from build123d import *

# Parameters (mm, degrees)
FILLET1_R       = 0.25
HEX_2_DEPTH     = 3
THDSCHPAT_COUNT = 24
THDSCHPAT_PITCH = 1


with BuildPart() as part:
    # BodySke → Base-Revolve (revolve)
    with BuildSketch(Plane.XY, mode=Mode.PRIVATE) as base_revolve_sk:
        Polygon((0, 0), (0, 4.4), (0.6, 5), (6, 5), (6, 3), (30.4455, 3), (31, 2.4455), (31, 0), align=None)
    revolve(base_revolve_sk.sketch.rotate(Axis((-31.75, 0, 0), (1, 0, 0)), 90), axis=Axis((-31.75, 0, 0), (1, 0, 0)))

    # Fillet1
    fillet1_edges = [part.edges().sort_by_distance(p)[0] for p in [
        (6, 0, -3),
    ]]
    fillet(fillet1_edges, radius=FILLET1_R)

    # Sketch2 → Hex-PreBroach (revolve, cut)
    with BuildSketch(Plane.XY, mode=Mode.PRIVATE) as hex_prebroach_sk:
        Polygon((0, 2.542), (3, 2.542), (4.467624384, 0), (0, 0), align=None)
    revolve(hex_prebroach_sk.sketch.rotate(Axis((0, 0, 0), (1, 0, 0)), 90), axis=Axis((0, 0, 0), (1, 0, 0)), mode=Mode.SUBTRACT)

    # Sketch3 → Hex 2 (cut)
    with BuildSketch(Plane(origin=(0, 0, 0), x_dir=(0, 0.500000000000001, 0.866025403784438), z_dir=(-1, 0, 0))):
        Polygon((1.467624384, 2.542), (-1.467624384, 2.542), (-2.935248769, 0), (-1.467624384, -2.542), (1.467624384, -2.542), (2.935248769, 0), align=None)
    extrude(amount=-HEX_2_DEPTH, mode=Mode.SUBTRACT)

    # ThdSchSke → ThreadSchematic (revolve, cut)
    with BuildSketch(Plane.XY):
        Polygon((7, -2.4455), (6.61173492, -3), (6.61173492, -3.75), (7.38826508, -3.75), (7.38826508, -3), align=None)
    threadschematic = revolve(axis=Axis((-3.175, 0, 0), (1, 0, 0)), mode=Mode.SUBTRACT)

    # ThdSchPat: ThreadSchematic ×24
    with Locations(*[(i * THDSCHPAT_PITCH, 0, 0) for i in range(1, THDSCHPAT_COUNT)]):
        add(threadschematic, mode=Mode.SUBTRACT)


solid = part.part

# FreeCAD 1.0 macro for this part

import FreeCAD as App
import Part
import Sketcher
Q = App.Units.Quantity


def edges_at(feature, points):
    """Names of the edges that pass closest to the given points."""
    edges = feature.Shape.Edges
    near = lambda p: min(range(len(edges)), key=lambda i: edges[i].distToShape(Part.Vertex(*p))[0])
    return sorted({f"Edge{near(p) + 1}" for p in points})


def add_polygon(sketch, points):
    """Adds a closed chain of lines whose ends are joined by coincident constraints."""
    first, n = sketch.GeometryCount, len(points)
    for a, b in zip(points, points[1:] + points[:1]):
        sketch.addGeometry(Part.LineSegment(App.Vector(*a, 0), App.Vector(*b, 0)), False)
    for i in range(n):
        sketch.addConstraint(Sketcher.Constraint("Coincident", first + i, 2, first + (i + 1) % n, 1))

doc = App.newDocument("Part")
body = doc.addObject("PartDesign::Body", "Body")

# Sketch on XY plane
sketch1 = body.newObject("Sketcher::SketchObject", "Sketch")
sketch1.AttachmentSupport = (doc.getObject("XY_Plane"), [""])
sketch1.MapMode = "FlatFace"
add_polygon(sketch1, [(0, 4.4), (0, 0), (31, 0), (31, 2.4), (30.4, 3), (6, 3), (6, 5), (0.6, 5)])  # lines 0-7
sketch1.addConstraint(Sketcher.Constraint("Vertical", 0))
sketch1.addConstraint(Sketcher.Constraint("Horizontal", 1))
sketch1.addConstraint(Sketcher.Constraint("Vertical", 2))
sketch1.addConstraint(Sketcher.Constraint("Horizontal", 4))
sketch1.addConstraint(Sketcher.Constraint("Vertical", 5))
sketch1.addConstraint(Sketcher.Constraint("Horizontal", 6))
sketch1.addConstraint(Sketcher.Constraint("Coincident", 0, 2, -1, 1))
sketch1.addConstraint(Sketcher.Constraint("Perpendicular", 3, 7))
sketch1.addConstraint(Sketcher.Constraint("DistanceX", 1, 1, 1, 2, 31.0))
sketch1.addConstraint(Sketcher.Constraint("DistanceY", 5, 1, 5, 2, 2.0))
sketch1.addConstraint(Sketcher.Constraint("Angle", 3, Q("135 deg")))
sketch1.addConstraint(Sketcher.Constraint("DistanceX", 6, 2, 6, 1, 5.4))
sketch1.addConstraint(Sketcher.Constraint("DistanceY", 0, 2, 0, 1, 4.4))
sketch1.addConstraint(Sketcher.Constraint("DistanceY", -1, 1, 3, 2, 3.0))
sketch1.addConstraint(Sketcher.Constraint("DistanceX", 4, 2, 4, 1, 24.4455))
revolution = body.newObject("PartDesign::Revolution", "Revolution")
revolution.Profile = sketch1
revolution.ReferenceAxis = (sketch1, ["H_Axis"])
revolution.Angle = 360
doc.recompute()

fillet = body.newObject("PartDesign::Fillet", "Fillet")
fillet.Base = (revolution, edges_at(revolution, [(6, 0, -3)]))
fillet.Radius = 0.25

# Sketch on XY plane
sketch2 = body.newObject("Sketcher::SketchObject", "Sketch001")
sketch2.AttachmentSupport = (doc.getObject("XY_Plane"), [""])
sketch2.MapMode = "FlatFace"
add_polygon(sketch2, [(3, 2.5), (0, 2.5), (0, 0), (4.5, 0)])  # lines 0-3
sketch2.addConstraint(Sketcher.Constraint("Horizontal", 0))
sketch2.addConstraint(Sketcher.Constraint("Vertical", 1))
sketch2.addConstraint(Sketcher.Constraint("Horizontal", 2))
sketch2.addConstraint(Sketcher.Constraint("Coincident", 1, 2, -1, 1))
sketch2.addConstraint(Sketcher.Constraint("DistanceX", 0, 2, 0, 1, 3.0))
sketch2.addConstraint(Sketcher.Constraint("Angle", 3, Q("120 deg")))
sketch2.addConstraint(Sketcher.Constraint("DistanceY", 1, 2, 1, 1, 2.542))
groove = body.newObject("PartDesign::Groove", "Groove")
groove.Profile = sketch2
groove.ReferenceAxis = (sketch2, ["H_Axis"])
groove.Angle = 360

# Sketch on YZ plane
sketch3 = body.newObject("Sketcher::SketchObject", "Sketch002")
sketch3.AttachmentSupport = (doc.getObject("YZ_Plane"), [""])
sketch3.MapMode = "FlatFace"
add_polygon(sketch3, [(2.9, 0), (1.5, -2.5), (-1.5, -2.5), (-2.9, 0), (-1.5, 2.5), (1.5, 2.5)])  # lines 0-5
sketch3.addConstraint(Sketcher.Constraint("Horizontal", 1))
sketch3.addConstraint(Sketcher.Constraint("Horizontal", 4))
sketch3.addConstraint(Sketcher.Constraint("Symmetric", 0, 2, 3, 2, -1, 1))
sketch3.addConstraint(Sketcher.Constraint("Symmetric", 2, 2, 5, 2, -1, 1))
sketch3.addConstraint(Sketcher.Constraint("PointOnObject", 2, 2, -1))
sketch3.addConstraint(Sketcher.Constraint("Parallel", 2, 5))
sketch3.addConstraint(Sketcher.Constraint("Vertical", 1, 2, 3, 2))
sketch3.addConstraint(Sketcher.Constraint("Angle", 0, Q("-120 deg")))
sketch3.addConstraint(Sketcher.Constraint("DistanceY", 0, 2, -1, 1, 2.542))
sketch3.addConstraint(Sketcher.Constraint("DistanceX", 1, 2, 1, 1, 2.935249))
pocket1 = body.newObject("PartDesign::Pocket", "Pocket")
pocket1.Profile = sketch3
pocket1.Length = 3
pocket1.Reversed = True

# Sketch on XY plane
sketch4 = body.newObject("Sketcher::SketchObject", "Sketch003")
sketch4.AttachmentSupport = (doc.getObject("XY_Plane"), [""])
sketch4.MapMode = "FlatFace"
add_polygon(sketch4, [(7, -2.4), (6.6, -3), (6.6, -3.8), (7.4, -3.8), (7.4, -3)])  # lines 0-4
sketch4.addConstraint(Sketcher.Constraint("Vertical", 1))
sketch4.addConstraint(Sketcher.Constraint("Horizontal", 2))
sketch4.addConstraint(Sketcher.Constraint("Vertical", 3))
sketch4.addConstraint(Sketcher.Constraint("Horizontal", 0, 2, 3, 2))
sketch4.addConstraint(Sketcher.Constraint("Equal", 0, 4))
sketch4.addConstraint(Sketcher.Constraint("Angle", 0, Q("-125 deg")))
sketch4.addConstraint(Sketcher.Constraint("DistanceY", 0, 2, -1, 1, 3.0))
sketch4.addConstraint(Sketcher.Constraint("DistanceX", -1, 1, 4, 2, 7.0))
sketch4.addConstraint(Sketcher.Constraint("DistanceY", 1, 2, 1, 1, 0.75))
sketch4.addConstraint(Sketcher.Constraint("DistanceX", 2, 1, 2, 2, 0.77653))
groove2 = body.newObject("PartDesign::Groove", "Groove001")
groove2.Profile = sketch4
groove2.ReferenceAxis = (sketch4, ["H_Axis"])
groove2.Angle = 360
doc.recompute()

linearpattern = body.newObject("PartDesign::LinearPattern", "LinearPattern")
linearpattern.Originals = [groove2]
linearpattern.Direction = (doc.getObject("X_Axis"), [""])
linearpattern.Mode = "offset"
linearpattern.Offset = 1
linearpattern.Occurrences = 24
body.Tip = linearpattern

doc.recompute()
